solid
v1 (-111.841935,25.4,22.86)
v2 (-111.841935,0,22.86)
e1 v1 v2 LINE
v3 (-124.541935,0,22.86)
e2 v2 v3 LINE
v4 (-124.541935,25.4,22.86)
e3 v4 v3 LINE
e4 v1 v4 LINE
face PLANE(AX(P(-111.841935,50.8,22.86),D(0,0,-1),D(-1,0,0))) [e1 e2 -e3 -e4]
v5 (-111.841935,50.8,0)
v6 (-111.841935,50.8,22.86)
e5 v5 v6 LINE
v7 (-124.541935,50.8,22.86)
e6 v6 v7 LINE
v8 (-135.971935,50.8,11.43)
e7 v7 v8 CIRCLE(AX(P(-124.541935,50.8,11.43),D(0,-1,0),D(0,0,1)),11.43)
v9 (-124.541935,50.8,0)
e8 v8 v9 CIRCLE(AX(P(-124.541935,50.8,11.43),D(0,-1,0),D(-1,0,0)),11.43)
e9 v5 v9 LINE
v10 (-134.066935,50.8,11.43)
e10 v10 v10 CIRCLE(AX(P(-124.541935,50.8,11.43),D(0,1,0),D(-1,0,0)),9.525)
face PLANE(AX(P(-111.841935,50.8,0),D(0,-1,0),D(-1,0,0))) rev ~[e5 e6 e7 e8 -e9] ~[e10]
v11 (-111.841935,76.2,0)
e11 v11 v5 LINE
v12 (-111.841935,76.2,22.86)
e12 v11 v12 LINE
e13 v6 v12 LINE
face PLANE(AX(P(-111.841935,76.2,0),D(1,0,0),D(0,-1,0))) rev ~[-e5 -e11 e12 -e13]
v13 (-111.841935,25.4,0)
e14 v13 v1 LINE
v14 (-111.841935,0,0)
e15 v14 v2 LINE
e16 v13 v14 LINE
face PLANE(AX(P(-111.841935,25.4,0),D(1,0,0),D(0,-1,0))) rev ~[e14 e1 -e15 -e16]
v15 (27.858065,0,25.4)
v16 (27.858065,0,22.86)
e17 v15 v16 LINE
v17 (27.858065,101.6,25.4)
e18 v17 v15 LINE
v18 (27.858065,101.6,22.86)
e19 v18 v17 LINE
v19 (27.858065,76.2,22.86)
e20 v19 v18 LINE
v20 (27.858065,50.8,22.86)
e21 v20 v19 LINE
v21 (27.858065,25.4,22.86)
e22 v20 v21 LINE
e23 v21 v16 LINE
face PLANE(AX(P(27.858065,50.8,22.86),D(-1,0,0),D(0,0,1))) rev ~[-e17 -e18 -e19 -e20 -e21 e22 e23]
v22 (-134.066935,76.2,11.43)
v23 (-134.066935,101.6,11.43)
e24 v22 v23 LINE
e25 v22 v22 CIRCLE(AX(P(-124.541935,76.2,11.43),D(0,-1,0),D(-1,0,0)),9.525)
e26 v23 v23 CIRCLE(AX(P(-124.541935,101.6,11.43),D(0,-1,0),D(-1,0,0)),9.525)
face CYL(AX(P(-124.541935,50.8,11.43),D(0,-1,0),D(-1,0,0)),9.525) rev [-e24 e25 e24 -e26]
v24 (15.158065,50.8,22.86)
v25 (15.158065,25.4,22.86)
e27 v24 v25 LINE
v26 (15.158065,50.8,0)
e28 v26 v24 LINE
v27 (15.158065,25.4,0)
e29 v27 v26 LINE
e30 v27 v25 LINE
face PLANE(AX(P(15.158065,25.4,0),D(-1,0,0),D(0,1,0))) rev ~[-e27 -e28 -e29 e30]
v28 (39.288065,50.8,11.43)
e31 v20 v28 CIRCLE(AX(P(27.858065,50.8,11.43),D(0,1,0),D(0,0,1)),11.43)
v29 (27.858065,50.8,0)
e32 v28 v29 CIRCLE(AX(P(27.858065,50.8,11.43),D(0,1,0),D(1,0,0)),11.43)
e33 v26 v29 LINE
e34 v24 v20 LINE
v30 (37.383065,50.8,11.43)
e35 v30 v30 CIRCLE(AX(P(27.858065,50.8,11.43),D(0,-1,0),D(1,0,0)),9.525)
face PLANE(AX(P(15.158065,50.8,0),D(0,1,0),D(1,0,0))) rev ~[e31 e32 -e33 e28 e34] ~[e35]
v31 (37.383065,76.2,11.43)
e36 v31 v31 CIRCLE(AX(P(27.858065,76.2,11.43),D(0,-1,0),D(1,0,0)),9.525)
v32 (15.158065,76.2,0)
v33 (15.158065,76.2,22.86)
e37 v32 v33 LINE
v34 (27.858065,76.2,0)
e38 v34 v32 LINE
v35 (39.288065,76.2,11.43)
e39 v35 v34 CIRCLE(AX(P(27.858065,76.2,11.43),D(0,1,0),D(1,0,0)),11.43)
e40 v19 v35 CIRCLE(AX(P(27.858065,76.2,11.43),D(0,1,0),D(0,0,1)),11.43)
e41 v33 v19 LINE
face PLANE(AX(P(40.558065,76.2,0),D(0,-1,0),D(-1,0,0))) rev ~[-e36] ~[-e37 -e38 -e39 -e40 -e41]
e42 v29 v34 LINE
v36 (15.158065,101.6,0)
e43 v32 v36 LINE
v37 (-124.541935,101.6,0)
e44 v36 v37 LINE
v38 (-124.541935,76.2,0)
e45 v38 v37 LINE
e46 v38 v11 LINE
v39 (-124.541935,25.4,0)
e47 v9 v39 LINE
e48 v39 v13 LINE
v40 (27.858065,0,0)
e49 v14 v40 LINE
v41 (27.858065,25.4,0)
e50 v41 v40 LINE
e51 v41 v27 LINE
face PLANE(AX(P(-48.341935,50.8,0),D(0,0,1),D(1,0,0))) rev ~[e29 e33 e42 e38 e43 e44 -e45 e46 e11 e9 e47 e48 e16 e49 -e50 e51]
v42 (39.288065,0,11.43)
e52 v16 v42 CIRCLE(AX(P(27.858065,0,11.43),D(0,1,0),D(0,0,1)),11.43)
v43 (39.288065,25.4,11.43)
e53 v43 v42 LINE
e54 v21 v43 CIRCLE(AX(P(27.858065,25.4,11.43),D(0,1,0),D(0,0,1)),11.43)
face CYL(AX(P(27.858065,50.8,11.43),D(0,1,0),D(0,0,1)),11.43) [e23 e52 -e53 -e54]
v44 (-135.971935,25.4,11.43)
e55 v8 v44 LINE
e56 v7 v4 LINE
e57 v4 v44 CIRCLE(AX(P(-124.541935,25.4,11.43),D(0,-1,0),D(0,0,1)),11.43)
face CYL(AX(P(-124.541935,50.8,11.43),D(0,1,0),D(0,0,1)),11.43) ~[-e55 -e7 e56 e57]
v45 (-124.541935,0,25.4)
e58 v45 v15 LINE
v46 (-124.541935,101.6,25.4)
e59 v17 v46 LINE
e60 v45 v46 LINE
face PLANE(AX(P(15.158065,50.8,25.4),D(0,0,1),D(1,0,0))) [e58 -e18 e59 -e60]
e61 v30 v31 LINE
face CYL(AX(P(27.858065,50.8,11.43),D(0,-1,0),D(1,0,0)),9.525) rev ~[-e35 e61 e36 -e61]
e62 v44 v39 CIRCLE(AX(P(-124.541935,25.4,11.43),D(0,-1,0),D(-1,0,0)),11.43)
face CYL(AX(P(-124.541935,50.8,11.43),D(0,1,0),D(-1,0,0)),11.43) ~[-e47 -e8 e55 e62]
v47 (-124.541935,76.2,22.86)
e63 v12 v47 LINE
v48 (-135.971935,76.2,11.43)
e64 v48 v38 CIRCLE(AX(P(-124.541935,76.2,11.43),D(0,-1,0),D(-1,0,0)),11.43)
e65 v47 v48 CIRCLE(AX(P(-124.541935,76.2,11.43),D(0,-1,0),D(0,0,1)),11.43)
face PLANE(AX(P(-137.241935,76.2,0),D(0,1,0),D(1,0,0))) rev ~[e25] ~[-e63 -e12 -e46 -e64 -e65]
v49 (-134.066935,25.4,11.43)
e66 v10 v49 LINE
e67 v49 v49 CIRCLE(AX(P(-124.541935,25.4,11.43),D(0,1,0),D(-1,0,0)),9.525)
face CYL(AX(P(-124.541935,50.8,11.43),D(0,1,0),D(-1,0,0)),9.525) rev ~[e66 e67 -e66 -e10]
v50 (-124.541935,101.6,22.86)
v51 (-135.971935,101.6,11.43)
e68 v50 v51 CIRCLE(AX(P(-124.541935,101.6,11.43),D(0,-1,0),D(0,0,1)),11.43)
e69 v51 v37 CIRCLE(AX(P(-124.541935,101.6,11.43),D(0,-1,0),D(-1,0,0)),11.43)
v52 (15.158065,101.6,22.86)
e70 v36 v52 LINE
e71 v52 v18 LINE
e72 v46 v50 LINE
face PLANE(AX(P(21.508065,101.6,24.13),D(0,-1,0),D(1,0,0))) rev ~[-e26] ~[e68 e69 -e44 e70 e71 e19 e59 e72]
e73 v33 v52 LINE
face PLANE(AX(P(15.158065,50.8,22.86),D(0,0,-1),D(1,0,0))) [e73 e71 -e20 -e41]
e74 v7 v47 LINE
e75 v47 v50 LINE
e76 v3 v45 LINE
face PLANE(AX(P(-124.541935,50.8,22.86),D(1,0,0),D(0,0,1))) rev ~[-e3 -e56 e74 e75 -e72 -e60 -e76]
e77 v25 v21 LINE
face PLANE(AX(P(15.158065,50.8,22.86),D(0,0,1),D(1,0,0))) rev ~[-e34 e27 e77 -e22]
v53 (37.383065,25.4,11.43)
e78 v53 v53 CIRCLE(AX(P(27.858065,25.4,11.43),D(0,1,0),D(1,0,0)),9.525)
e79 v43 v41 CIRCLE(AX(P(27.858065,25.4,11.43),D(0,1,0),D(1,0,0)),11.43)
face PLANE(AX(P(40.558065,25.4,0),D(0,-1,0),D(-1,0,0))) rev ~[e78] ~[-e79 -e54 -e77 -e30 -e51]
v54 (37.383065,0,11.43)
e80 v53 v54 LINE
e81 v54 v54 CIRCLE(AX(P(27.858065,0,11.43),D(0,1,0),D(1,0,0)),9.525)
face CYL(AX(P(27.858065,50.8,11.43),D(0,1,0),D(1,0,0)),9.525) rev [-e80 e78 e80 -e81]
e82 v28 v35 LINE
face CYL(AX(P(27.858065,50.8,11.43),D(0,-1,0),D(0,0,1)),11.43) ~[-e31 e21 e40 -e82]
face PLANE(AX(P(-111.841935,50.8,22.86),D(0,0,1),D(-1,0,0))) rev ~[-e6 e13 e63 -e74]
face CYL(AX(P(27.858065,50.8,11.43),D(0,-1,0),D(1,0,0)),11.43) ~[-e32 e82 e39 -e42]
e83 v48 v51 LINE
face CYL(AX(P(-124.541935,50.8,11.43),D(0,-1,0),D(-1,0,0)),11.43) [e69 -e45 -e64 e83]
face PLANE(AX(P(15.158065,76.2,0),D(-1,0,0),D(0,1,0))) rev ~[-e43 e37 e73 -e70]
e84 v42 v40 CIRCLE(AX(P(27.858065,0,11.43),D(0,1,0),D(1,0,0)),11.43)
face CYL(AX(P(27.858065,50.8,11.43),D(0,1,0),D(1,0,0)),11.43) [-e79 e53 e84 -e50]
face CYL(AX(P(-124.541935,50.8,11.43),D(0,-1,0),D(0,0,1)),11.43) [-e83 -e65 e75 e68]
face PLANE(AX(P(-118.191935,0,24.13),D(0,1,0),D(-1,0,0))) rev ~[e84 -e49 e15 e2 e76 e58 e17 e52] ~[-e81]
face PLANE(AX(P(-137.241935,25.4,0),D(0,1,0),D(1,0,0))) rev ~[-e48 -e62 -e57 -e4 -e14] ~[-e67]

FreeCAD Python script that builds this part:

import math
import FreeCAD as App
import Part
import Sketcher
from FreeCAD import Vector
Q = App.Units.Quantity

doc = App.newDocument("Part")
body = doc.addObject("PartDesign::Body", "Body")

# Sketch on XY plane
sketch1 = body.newObject("Sketcher::SketchObject", "Sketch")
sketch1.AttachmentSupport = (doc.getObject("XY_Plane"), [""])
sketch1.MapMode = "FlatFace"
sketch1.addGeometry([
    Part.LineSegment(Vector(15, 102, 0), Vector(-137, 102, 0)),  # 0
    Part.LineSegment(Vector(-137, 102, 0), Vector(-137, 76, 0)),  # 1
    Part.LineSegment(Vector(-137, 76, 0), Vector(-112, 76, 0)),  # 2
    Part.LineSegment(Vector(-112, 76, 0), Vector(-112, 51, 0)),  # 3
    Part.LineSegment(Vector(-112, 51, 0), Vector(-137, 51, 0)),  # 4
    Part.LineSegment(Vector(-137, 51, 0), Vector(-137, 25, 0)),  # 5
    Part.LineSegment(Vector(-137, 25, 0), Vector(-112, 25, 0)),  # 6
    Part.LineSegment(Vector(-112, 25, 0), Vector(-112, 0, 0)),  # 7
    Part.LineSegment(Vector(-112, 0, 0), Vector(41, 0, 0)),  # 8
    Part.LineSegment(Vector(41, 0, 0), Vector(41, 25, 0)),  # 9
    Part.LineSegment(Vector(41, 25, 0), Vector(15, 25, 0)),  # 10
    Part.LineSegment(Vector(15, 25, 0), Vector(15, 51, 0)),  # 11
    Part.LineSegment(Vector(15, 51, 0), Vector(41, 51, 0)),  # 12
    Part.LineSegment(Vector(41, 51, 0), Vector(41, 76, 0)),  # 13
    Part.LineSegment(Vector(41, 76, 0), Vector(15, 76, 0)),  # 14
    Part.LineSegment(Vector(15, 76, 0), Vector(15, 102, 0)),  # 15
], False)
sketch1.addConstraint([
    Sketcher.Constraint("Coincident", 0, 2, 1, 1),
    Sketcher.Constraint("Coincident", 1, 2, 2, 1),
    Sketcher.Constraint("Coincident", 2, 2, 3, 1),
    Sketcher.Constraint("Coincident", 3, 2, 4, 1),
    Sketcher.Constraint("Coincident", 4, 2, 5, 1),
    Sketcher.Constraint("Coincident", 5, 2, 6, 1),
    Sketcher.Constraint("Coincident", 6, 2, 7, 1),
    Sketcher.Constraint("Coincident", 7, 2, 8, 1),
    Sketcher.Constraint("Coincident", 8, 2, 9, 1),
    Sketcher.Constraint("Coincident", 9, 2, 10, 1),
    Sketcher.Constraint("Coincident", 10, 2, 11, 1),
    Sketcher.Constraint("Coincident", 11, 2, 12, 1),
    Sketcher.Constraint("Coincident", 12, 2, 13, 1),
    Sketcher.Constraint("Coincident", 13, 2, 14, 1),
    Sketcher.Constraint("Coincident", 14, 2, 15, 1),
    Sketcher.Constraint("Coincident", 15, 2, 0, 1),
    Sketcher.Constraint("Horizontal", 0),
    Sketcher.Constraint("Vertical", 1),
    Sketcher.Constraint("Horizontal", 2),
    Sketcher.Constraint("Vertical", 3),
    Sketcher.Constraint("Horizontal", 4),
    Sketcher.Constraint("Vertical", 5),
    Sketcher.Constraint("Horizontal", 6),
    Sketcher.Constraint("Vertical", 7),
    Sketcher.Constraint("Horizontal", 8),
    Sketcher.Constraint("Vertical", 9),
    Sketcher.Constraint("Horizontal", 10),
    Sketcher.Constraint("Vertical", 11),
    Sketcher.Constraint("Horizontal", 12),
    Sketcher.Constraint("Vertical", 13),
    Sketcher.Constraint("Horizontal", 14),
    Sketcher.Constraint("Vertical", 15),
    Sketcher.Constraint("PointOnObject", 7, 2, -1),
    Sketcher.Constraint("Horizontal", 6, 2, 9, 2),
    Sketcher.Constraint("Horizontal", 4, 2, 11, 2),
    Sketcher.Constraint("Horizontal", 2, 2, 13, 2),
    Sketcher.Constraint("Vertical", 1, 2, 4, 2),
    Sketcher.Constraint("Vertical", 3, 2, 6, 2),
    Sketcher.Constraint("Vertical", 9, 2, 12, 2),
    Sketcher.Constraint("Vertical", 11, 2, 14, 2),
    Sketcher.Constraint("Equal", 0, 8),
    Sketcher.Constraint("Equal", 14, 1),
    Sketcher.Constraint("Equal", 1, 3),
    Sketcher.Constraint("Equal", 3, 5),
    Sketcher.Constraint("Equal", 5, 7),
    Sketcher.Constraint("DistanceX", 0, 2, 0, 1, Q("6 in")),
    Sketcher.Constraint("DistanceX", 2, 1, 2, 2, Q("1 in")),
    Sketcher.Constraint("DistanceX", 0, 2, -1, 1, 137.241935),
])
pad1 = body.newObject("PartDesign::Pad", "Pad")
pad1.Profile = sketch1
pad1.Length = Q("1 in")

# Sketch on XZ plane
sketch2 = body.newObject("Sketcher::SketchObject", "Sketch001")
sketch2.AttachmentSupport = (doc.getObject("XZ_Plane"), [""])
sketch2.MapMode = "FlatFace"
sketch2.AttachmentOffset = App.Placement(Vector(0, 0, -2 * 25.4), App.Rotation())
sketch2.addGeometry([
    Part.ArcOfCircle(Part.Circle(Vector(-124.5, 11.4, 0), Vector(0, 0, 1), 11.4), math.radians(90), math.radians(180)),  # 0
    Part.ArcOfCircle(Part.Circle(Vector(-124.5, 11.4, 0), Vector(0, 0, 1), 11.4), math.radians(180), math.radians(270)),  # 1
    Part.LineSegment(Vector(-124.5, 0, 0), Vector(-137.2, 0, 0)),  # 2
    Part.LineSegment(Vector(-137.2, 0, 0), Vector(-137.2, 25.4, 0)),  # 3
    Part.LineSegment(Vector(-137.2, 25.4, 0), Vector(-124.5, 25.4, 0)),  # 4
    Part.LineSegment(Vector(-124.5, 25.4, 0), Vector(-124.5, 22.9, 0)),  # 5
], False)
sketch2.addConstraint([
    Sketcher.Constraint("Tangent", 0, 2, 1, 1),
    Sketcher.Constraint("Tangent", 1, 2, 2, 1),
    Sketcher.Constraint("Coincident", 2, 2, 3, 1),
    Sketcher.Constraint("Coincident", 3, 2, 4, 1),
    Sketcher.Constraint("Coincident", 4, 2, 5, 1),
    Sketcher.Constraint("Coincident", 5, 2, 0, 1),
    Sketcher.Constraint("Horizontal", 2),
    Sketcher.Constraint("Vertical", 3),
    Sketcher.Constraint("Horizontal", 4),
    Sketcher.Constraint("Vertical", 5),
    Sketcher.Constraint("Equal", 0, 1),
    Sketcher.Constraint("PointOnObject", 1, 2, -1),
    Sketcher.Constraint("Horizontal", 1, 3, 0, 2),
    Sketcher.Constraint("Vertical", 1, 2, 4, 2),
    Sketcher.Constraint("DistanceY", 3, 1, 3, 2, Q("1 in")),
    Sketcher.Constraint("Radius", 0, Q("0.45 in")),
    Sketcher.Constraint("DistanceX", 2, 2, 2, 1, Q("0.5 in")),
    Sketcher.Constraint("DistanceX", 0, 3, -1, 1, 124.541935),
])
pocket1 = body.newObject("PartDesign::Pocket", "Pocket")
pocket1.Profile = sketch2
pocket1.Type = "ThroughAll"
pocket1.Midplane = True

# Sketch on XZ plane
sketch3 = body.newObject("Sketcher::SketchObject", "Sketch002")
sketch3.AttachmentSupport = (doc.getObject("XZ_Plane"), [""])
sketch3.MapMode = "FlatFace"
sketch3.AttachmentOffset = App.Placement(Vector(0, 0, -2 * 25.4), App.Rotation())
sketch3.addGeometry(Part.Circle(Vector(-125, 11, 0), Vector(0, 0, 1), 10), False)
sketch3.addConstraint([
    Sketcher.Constraint("Diameter", 0, Q("0.75 in")),
    Sketcher.Constraint("DistanceY", -1, 1, 0, 3, Q("0.45 in")),
    Sketcher.Constraint("DistanceX", 0, 3, -1, 1, 124.541935),
])
pocket2 = body.newObject("PartDesign::Pocket", "Pocket001")
pocket2.Profile = sketch3
pocket2.Type = "ThroughAll"
pocket2.Midplane = True

# Sketch on XZ plane
sketch4 = body.newObject("Sketcher::SketchObject", "Sketch003")
sketch4.AttachmentSupport = (doc.getObject("XZ_Plane"), [""])
sketch4.MapMode = "FlatFace"
sketch4.AttachmentOffset = App.Placement(Vector(0, 0, -2 * 25.4), App.Rotation())
sketch4.addGeometry([
    Part.LineSegment(Vector(-111.8, 25.4, 0), Vector(-111.8, 22.9, 0)),
    Part.LineSegment(Vector(-111.8, 22.9, 0), Vector(-124.5, 22.9, 0)),
    Part.LineSegment(Vector(-124.5, 22.9, 0), Vector(-124.5, 25.4, 0)),
    Part.LineSegment(Vector(-124.5, 25.4, 0), Vector(-111.8, 25.4, 0)),
], False)
sketch4.addConstraint([
    Sketcher.Constraint("Coincident", 0, 2, 1, 1),
    Sketcher.Constraint("Coincident", 1, 2, 2, 1),
    Sketcher.Constraint("Coincident", 2, 2, 3, 1),
    Sketcher.Constraint("Coincident", 3, 2, 0, 1),
    Sketcher.Constraint("Vertical", 0),
    Sketcher.Constraint("Horizontal", 1),
    Sketcher.Constraint("Vertical", 2),
    Sketcher.Constraint("Horizontal", 3),
    Sketcher.Constraint("DistanceX", 1, 2, 1, 1, Q("0.5 in")),
    Sketcher.Constraint("DistanceY", 0, 2, 0, 1, Q("0.1 in")),
    Sketcher.Constraint("DistanceY", -1, 1, 2, 2, Q("1 in")),
    Sketcher.Constraint("DistanceX", 0, 2, -1, 1, 111.841935),
])
pad2 = body.newObject("PartDesign::Pad", "Pad001")
pad2.Profile = sketch4
pad2.Type = "TwoLengths"
pad2.Length = Q("1 in")
pad2.Length2 = Q("2 in")
pad2.Reversed = True

# Sketch on XZ plane
sketch5 = body.newObject("Sketcher::SketchObject", "Sketch004")
sketch5.AttachmentSupport = (doc.getObject("XZ_Plane"), [""])
sketch5.MapMode = "FlatFace"
sketch5.AttachmentOffset = App.Placement(Vector(0, 0, -2 * 25.4), App.Rotation())
sketch5.addGeometry([
    Part.ArcOfCircle(Part.Circle(Vector(27.9, 11.4, 0), Vector(0, 0, 1), 11.4), math.radians(0), math.radians(90)),  # 0
    Part.ArcOfCircle(Part.Circle(Vector(27.9, 11.4, 0), Vector(0, 0, 1), 11.4), math.radians(-90), math.radians(0)),  # 1
    Part.LineSegment(Vector(27.9, 0, 0), Vector(40.6, 0, 0)),  # 2
    Part.LineSegment(Vector(40.6, 0, 0), Vector(40.6, 25.4, 0)),  # 3
    Part.LineSegment(Vector(40.6, 25.4, 0), Vector(27.9, 25.4, 0)),  # 4
    Part.LineSegment(Vector(27.9, 25.4, 0), Vector(27.9, 22.9, 0)),  # 5
], False)
sketch5.addConstraint([
    Sketcher.Constraint("Tangent", 0, 1, 1, 2),
    Sketcher.Constraint("Tangent", 1, 1, 2, 1),
    Sketcher.Constraint("Coincident", 2, 2, 3, 1),
    Sketcher.Constraint("Coincident", 3, 2, 4, 1),
    Sketcher.Constraint("Coincident", 4, 2, 5, 1),
    Sketcher.Constraint("Coincident", 5, 2, 0, 2),
    Sketcher.Constraint("Horizontal", 2),
    Sketcher.Constraint("Vertical", 3),
    Sketcher.Constraint("Horizontal", 4),
    Sketcher.Constraint("Vertical", 5),
    Sketcher.Constraint("Equal", 0, 1),
    Sketcher.Constraint("PointOnObject", 1, 1, -1),
    Sketcher.Constraint("Horizontal", 1, 3, 0, 1),
    Sketcher.Constraint("Vertical", 1, 1, 4, 2),
    Sketcher.Constraint("DistanceY", 3, 1, 3, 2, Q("1 in")),
    Sketcher.Constraint("Radius", 0, Q("0.45 in")),
    Sketcher.Constraint("DistanceX", 2, 1, 2, 2, Q("0.5 in")),
    Sketcher.Constraint("DistanceX", -1, 1, 0, 3, 27.858065),
])
pocket3 = body.newObject("PartDesign::Pocket", "Pocket002")
pocket3.Profile = sketch5
pocket3.Type = "ThroughAll"
pocket3.Midplane = True

# Sketch on XZ plane
sketch6 = body.newObject("Sketcher::SketchObject", "Sketch005")
sketch6.AttachmentSupport = (doc.getObject("XZ_Plane"), [""])
sketch6.MapMode = "FlatFace"
sketch6.AttachmentOffset = App.Placement(Vector(0, 0, -2 * 25.4), App.Rotation())
sketch6.addGeometry(Part.Circle(Vector(28, 11, 0), Vector(0, 0, 1), 10), False)
sketch6.addConstraint([
    Sketcher.Constraint("Diameter", 0, Q("0.75 in")),
    Sketcher.Constraint("DistanceY", -1, 1, 0, 3, Q("0.45 in")),
    Sketcher.Constraint("DistanceX", -1, 1, 0, 3, 27.858065),
])
pocket4 = body.newObject("PartDesign::Pocket", "Pocket003")
pocket4.Profile = sketch6
pocket4.Type = "ThroughAll"
pocket4.Midplane = True

# Sketch on XZ plane
sketch7 = body.newObject("Sketcher::SketchObject", "Sketch006")
sketch7.AttachmentSupport = (doc.getObject("XZ_Plane"), [""])
sketch7.MapMode = "FlatFace"
sketch7.AttachmentOffset = App.Placement(Vector(0, 0, -2 * 25.4), App.Rotation())
sketch7.addGeometry([
    Part.LineSegment(Vector(15.2, 25.4, 0), Vector(15.2, 22.9, 0)),
    Part.LineSegment(Vector(15.2, 22.9, 0), Vector(27.9, 22.9, 0)),
    Part.LineSegment(Vector(27.9, 22.9, 0), Vector(27.9, 25.4, 0)),
    Part.LineSegment(Vector(27.9, 25.4, 0), Vector(15.2, 25.4, 0)),
], False)
sketch7.addConstraint([
    Sketcher.Constraint("Coincident", 0, 2, 1, 1),
    Sketcher.Constraint("Coincident", 1, 2, 2, 1),
    Sketcher.Constraint("Coincident", 2, 2, 3, 1),
    Sketcher.Constraint("Coincident", 3, 2, 0, 1),
    Sketcher.Constraint("Vertical", 0),
    Sketcher.Constraint("Horizontal", 1),
    Sketcher.Constraint("Vertical", 2),
    Sketcher.Constraint("Horizontal", 3),
    Sketcher.Constraint("DistanceX", 1, 1, 1, 2, Q("0.5 in")),
    Sketcher.Constraint("DistanceY", 0, 2, 0, 1, Q("0.1 in")),
    Sketcher.Constraint("DistanceY", -1, 1, 2, 2, Q("1 in")),
    Sketcher.Constraint("DistanceX", -1, 1, 0, 2, 15.158065),
])
pad3 = body.newObject("PartDesign::Pad", "Pad002")
pad3.Profile = sketch7
pad3.Type = "TwoLengths"
pad3.Length = Q("1 in")
pad3.Length2 = Q("2 in")

doc.recompute()
